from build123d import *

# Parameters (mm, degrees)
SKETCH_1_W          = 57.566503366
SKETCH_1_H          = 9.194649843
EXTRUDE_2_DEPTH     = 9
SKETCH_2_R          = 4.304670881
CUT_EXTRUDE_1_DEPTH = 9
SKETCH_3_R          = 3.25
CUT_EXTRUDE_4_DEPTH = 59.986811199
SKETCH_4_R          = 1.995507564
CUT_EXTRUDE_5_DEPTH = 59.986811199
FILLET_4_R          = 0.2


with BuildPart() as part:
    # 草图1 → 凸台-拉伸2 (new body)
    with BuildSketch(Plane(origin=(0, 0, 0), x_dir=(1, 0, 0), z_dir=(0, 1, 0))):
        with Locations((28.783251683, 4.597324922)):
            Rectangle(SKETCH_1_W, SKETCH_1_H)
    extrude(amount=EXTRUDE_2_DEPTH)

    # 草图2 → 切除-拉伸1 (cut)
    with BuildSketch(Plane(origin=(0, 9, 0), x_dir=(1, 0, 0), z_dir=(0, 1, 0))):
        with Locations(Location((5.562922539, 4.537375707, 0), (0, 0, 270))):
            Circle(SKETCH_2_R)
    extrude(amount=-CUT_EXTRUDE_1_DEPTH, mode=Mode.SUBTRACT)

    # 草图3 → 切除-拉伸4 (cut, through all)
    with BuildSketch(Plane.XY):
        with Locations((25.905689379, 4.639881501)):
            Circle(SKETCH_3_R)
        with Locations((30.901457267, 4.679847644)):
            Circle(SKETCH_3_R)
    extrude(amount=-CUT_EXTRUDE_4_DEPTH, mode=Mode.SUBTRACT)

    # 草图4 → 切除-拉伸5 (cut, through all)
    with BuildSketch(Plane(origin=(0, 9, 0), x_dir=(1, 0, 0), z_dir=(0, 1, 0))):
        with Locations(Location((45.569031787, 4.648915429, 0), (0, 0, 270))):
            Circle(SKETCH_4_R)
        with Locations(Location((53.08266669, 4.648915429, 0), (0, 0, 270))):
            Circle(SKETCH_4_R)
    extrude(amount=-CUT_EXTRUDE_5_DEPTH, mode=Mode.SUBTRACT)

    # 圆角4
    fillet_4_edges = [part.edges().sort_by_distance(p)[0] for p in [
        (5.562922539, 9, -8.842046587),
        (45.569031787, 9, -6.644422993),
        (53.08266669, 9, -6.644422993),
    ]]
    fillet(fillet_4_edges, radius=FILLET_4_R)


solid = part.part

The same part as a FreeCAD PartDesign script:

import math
import FreeCAD as App
import Part
import Sketcher

V = App.Vector
Q = App.Units.Quantity


def edges_at(feature, points):
    """Names of the edges that pass closest to the given points."""
    edges = feature.Shape.Edges
    near = lambda p: min(range(len(edges)), key=lambda i: edges[i].distToShape(Part.Vertex(*p))[0])
    return sorted({f"Edge{near(p) + 1}" for p in points})


def add_polygon(sketch, points):
    """Adds a closed chain of lines whose ends are joined by coincident constraints."""
    first, n = sketch.GeometryCount, len(points)
    for a, b in zip(points, points[1:] + points[:1]):
        sketch.addGeometry(Part.LineSegment(App.Vector(*a, 0), App.Vector(*b, 0)), False)
    for i in range(n):
        sketch.addConstraint(Sketcher.Constraint("Coincident", first + i, 2, first + (i + 1) % n, 1))

doc = App.newDocument("Part")
body = doc.addObject("PartDesign::Body", "Body")

sketch1 = doc.addObject("Sketcher::SketchObject", "Sketch")
body.addObject(sketch1)
sketch1.AttachmentSupport = (doc.XZ_Plane, [""])
sketch1.MapMode = "FlatFace"
add_polygon(sketch1, [(0, -9), (0, 0), (58, 0), (58, -9)])
sketch1.addConstraint([
    Sketcher.Constraint("Vertical", 0),
    Sketcher.Constraint("Horizontal", 1),
    Sketcher.Constraint("Vertical", 2),
    Sketcher.Constraint("Horizontal", 3),
    Sketcher.Constraint("Coincident", 0, 2, -1, 1),
    Sketcher.Constraint("DistanceY", 0, 1, 0, 2, Q("9.19465 mm")),
    Sketcher.Constraint("DistanceX", 1, 1, 1, 2, Q("57.566503 mm")),
])
pad1 = doc.addObject("PartDesign::Pad", "Pad")
body.addObject(pad1)
pad1.Profile = sketch1
pad1.Length = 9
pad1.Reversed = True

sketch2 = doc.addObject("Sketcher::SketchObject", "Sketch001")
body.addObject(sketch2)
sketch2.AttachmentSupport = (doc.XZ_Plane, [""])
sketch2.MapMode = "FlatFace"
sketch2.AttachmentOffset = App.Placement(V(0, 0, -9), App.Rotation())
sketch2.addGeometry(Part.Circle(V(5.6, -4.5, 0), V(0, 0, 1), 4.3), False)
sketch2.addConstraint([
    Sketcher.Constraint("Diameter", 0, Q("8.609342 mm")),
    Sketcher.Constraint("DistanceX", -1, 1, 0, 3, Q("5.562923 mm")),
    Sketcher.Constraint("DistanceY", 0, 3, -1, 1, Q("4.537376 mm")),
])
pocket1 = doc.addObject("PartDesign::Pocket", "Pocket")
body.addObject(pocket1)
pocket1.Profile = sketch2
pocket1.Length = 9
pocket1.Reversed = True

sketch3 = doc.addObject("Sketcher::SketchObject", "Sketch002")
body.addObject(sketch3)
sketch3.AttachmentSupport = (doc.XY_Plane, [""])
sketch3.MapMode = "FlatFace"
sketch3.addGeometry([
    Part.ArcOfCircle(Part.Circle(V(25.9, 4.6, 0), V(0, 0, 1), 3.2), math.radians(40), math.radians(321)),
    Part.ArcOfCircle(Part.Circle(V(30.9, 4.7, 0), V(0, 0, 1), 3.2), math.radians(-140), math.radians(141)),
], False)
sketch3.addConstraint([
    Sketcher.Constraint("Coincident", 0, 1, 1, 2),
    Sketcher.Constraint("Coincident", 1, 1, 0, 2),
    Sketcher.Constraint("Equal", 0, 1),
    Sketcher.Constraint("Radius", 0, Q("3.25 mm")),
    Sketcher.Constraint("DistanceX", -1, 1, 0, 3, Q("25.905689 mm")),
    Sketcher.Constraint("DistanceY", -1, 1, 0, 3, Q("4.639882 mm")),
    Sketcher.Constraint("DistanceX", -1, 1, 0, 1, Q("28.386941 mm")),
    Sketcher.Constraint("DistanceX", -1, 1, 1, 3, Q("30.901457 mm")),
])
pocket2 = doc.addObject("PartDesign::Pocket", "Pocket001")
body.addObject(pocket2)
pocket2.Profile = sketch3
pocket2.Type = "ThroughAll"

sketch4 = doc.addObject("Sketcher::SketchObject", "Sketch003")
body.addObject(sketch4)
sketch4.AttachmentSupport = (doc.XZ_Plane, [""])
sketch4.MapMode = "FlatFace"
sketch4.AttachmentOffset = App.Placement(V(0, 0, -9), App.Rotation())
sketch4.addGeometry([
    Part.Circle(V(45.6, -4.6, 0), V(0, 0, 1), 2),
    Part.Circle(V(53.1, -4.6, 0), V(0, 0, 1), 2),
], False)
sketch4.addConstraint([
    Sketcher.Constraint("Equal", 0, 1),
    Sketcher.Constraint("Horizontal", 0, 3, 1, 3),
    Sketcher.Constraint("Diameter", 0, Q("3.991015 mm")),
    Sketcher.Constraint("DistanceX", -1, 1, 0, 3, Q("45.569032 mm")),
    Sketcher.Constraint("DistanceY", 0, 3, -1, 1, Q("4.648915 mm")),
    Sketcher.Constraint("DistanceX", -1, 1, 1, 3, Q("53.082667 mm")),
])
pocket3 = doc.addObject("PartDesign::Pocket", "Pocket002")
body.addObject(pocket3)
pocket3.Profile = sketch4
pocket3.Type = "ThroughAll"
pocket3.Reversed = True
doc.recompute()

fillet = doc.addObject("PartDesign::Fillet", "Fillet")
body.addObject(fillet)
fillet.Base = (pocket3, edges_at(pocket3, [(5.563, 9, -8.842), (45.569, 9, -6.644), (53.083, 9, -6.644)]))
fillet.Radius = 0.2

doc.recompute()
